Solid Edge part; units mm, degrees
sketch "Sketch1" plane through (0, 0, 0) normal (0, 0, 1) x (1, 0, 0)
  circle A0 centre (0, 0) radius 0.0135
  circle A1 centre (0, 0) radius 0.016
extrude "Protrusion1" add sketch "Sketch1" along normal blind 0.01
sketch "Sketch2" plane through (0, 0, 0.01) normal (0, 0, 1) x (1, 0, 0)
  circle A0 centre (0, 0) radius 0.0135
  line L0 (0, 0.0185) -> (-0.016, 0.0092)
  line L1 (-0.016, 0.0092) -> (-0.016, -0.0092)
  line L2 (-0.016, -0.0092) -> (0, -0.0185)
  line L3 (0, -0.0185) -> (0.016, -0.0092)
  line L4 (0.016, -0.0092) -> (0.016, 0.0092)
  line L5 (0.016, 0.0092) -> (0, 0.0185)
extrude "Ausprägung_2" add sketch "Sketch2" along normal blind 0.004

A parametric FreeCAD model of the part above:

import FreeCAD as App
import Part
import Sketcher

V = App.Vector
Q = App.Units.Quantity

doc = App.newDocument("Part")
body = doc.addObject("PartDesign::Body", "Body")

# Sketch on XY plane
sketch1 = body.newObject("Sketcher::SketchObject", "Sketch")
sketch1.AttachmentSupport = (doc.getObject("XY_Plane"), [""])
sketch1.MapMode = "FlatFace"
sketch1.addGeometry([
    Part.Circle(V(0, 0, 0), V(0, 0, 1), 0.016),
    Part.Circle(V(0, 0, 0), V(0, 0, 1), 0.013),
], False)
sketch1.addConstraint([
    Sketcher.Constraint("Coincident", 0, 3, -1, 1),
    Sketcher.Constraint("Coincident", 1, 3, -1, 1),
    Sketcher.Constraint("Diameter", 0, Q("0.032 mm")),
    Sketcher.Constraint("Diameter", 1, Q("0.027 mm")),
])
pad1 = body.newObject("PartDesign::Pad", "Pad")
pad1.Profile = sketch1
pad1.Length = 0.01

# Sketch on XY plane
sketch2 = body.newObject("Sketcher::SketchObject", "Sketch001")
sketch2.AttachmentSupport = (doc.getObject("XY_Plane"), [""])
sketch2.MapMode = "FlatFace"
sketch2.AttachmentOffset = App.Placement(V(0, 0, 0.01), App.Rotation())
sketch2.addGeometry([
    Part.LineSegment(V(0.016, 0.009, 0), V(0, 0.018, 0)),  # 0
    Part.LineSegment(V(0, 0.018, 0), V(-0.016, 0.009, 0)),  # 1
    Part.LineSegment(V(-0.016, 0.009, 0), V(-0.016, -0.009, 0)),  # 2
    Part.LineSegment(V(-0.016, -0.009, 0), V(0, -0.018, 0)),  # 3
    Part.LineSegment(V(0, -0.018, 0), V(0.016, -0.009, 0)),  # 4
    Part.LineSegment(V(0.016, -0.009, 0), V(0.016, 0.009, 0)),  # 5
    Part.Circle(V(0, 0, 0), V(0, 0, 1), 0.013),  # 6
], False)
sketch2.addConstraint([
    Sketcher.Constraint("Coincident", 0, 2, 1, 1),
    Sketcher.Constraint("Coincident", 1, 2, 2, 1),
    Sketcher.Constraint("Coincident", 2, 2, 3, 1),
    Sketcher.Constraint("Coincident", 3, 2, 4, 1),
    Sketcher.Constraint("Coincident", 4, 2, 5, 1),
    Sketcher.Constraint("Coincident", 5, 2, 0, 1),
    Sketcher.Constraint("Vertical", 2),
    Sketcher.Constraint("Vertical", 5),
    Sketcher.Constraint("Coincident", 6, 3, -1, 1),
    Sketcher.Constraint("Symmetric", 0, 2, 3, 2, -1, 1),
    Sketcher.Constraint("Symmetric", 1, 2, 4, 2, -1, 1),
    Sketcher.Constraint("PointOnObject", 0, 2, -2),
    Sketcher.Constraint("Parallel", 0, 3),
    Sketcher.Constraint("Horizontal", 2, 2, 4, 2),
    Sketcher.Constraint("Diameter", 6, Q("0.027 mm")),
    Sketcher.Constraint("DistanceY", 2, 2, 2, 1, Q("0.0184 mm")),
    Sketcher.Constraint("DistanceX", 1, 2, -1, 1, Q("0.016 mm")),
    Sketcher.Constraint("DistanceY", 3, 2, 0, 2, Q("0.037 mm")),
])
pad2 = body.newObject("PartDesign::Pad", "Pad001")
pad2.Profile = sketch2
pad2.Length = 0.004

doc.recompute()
